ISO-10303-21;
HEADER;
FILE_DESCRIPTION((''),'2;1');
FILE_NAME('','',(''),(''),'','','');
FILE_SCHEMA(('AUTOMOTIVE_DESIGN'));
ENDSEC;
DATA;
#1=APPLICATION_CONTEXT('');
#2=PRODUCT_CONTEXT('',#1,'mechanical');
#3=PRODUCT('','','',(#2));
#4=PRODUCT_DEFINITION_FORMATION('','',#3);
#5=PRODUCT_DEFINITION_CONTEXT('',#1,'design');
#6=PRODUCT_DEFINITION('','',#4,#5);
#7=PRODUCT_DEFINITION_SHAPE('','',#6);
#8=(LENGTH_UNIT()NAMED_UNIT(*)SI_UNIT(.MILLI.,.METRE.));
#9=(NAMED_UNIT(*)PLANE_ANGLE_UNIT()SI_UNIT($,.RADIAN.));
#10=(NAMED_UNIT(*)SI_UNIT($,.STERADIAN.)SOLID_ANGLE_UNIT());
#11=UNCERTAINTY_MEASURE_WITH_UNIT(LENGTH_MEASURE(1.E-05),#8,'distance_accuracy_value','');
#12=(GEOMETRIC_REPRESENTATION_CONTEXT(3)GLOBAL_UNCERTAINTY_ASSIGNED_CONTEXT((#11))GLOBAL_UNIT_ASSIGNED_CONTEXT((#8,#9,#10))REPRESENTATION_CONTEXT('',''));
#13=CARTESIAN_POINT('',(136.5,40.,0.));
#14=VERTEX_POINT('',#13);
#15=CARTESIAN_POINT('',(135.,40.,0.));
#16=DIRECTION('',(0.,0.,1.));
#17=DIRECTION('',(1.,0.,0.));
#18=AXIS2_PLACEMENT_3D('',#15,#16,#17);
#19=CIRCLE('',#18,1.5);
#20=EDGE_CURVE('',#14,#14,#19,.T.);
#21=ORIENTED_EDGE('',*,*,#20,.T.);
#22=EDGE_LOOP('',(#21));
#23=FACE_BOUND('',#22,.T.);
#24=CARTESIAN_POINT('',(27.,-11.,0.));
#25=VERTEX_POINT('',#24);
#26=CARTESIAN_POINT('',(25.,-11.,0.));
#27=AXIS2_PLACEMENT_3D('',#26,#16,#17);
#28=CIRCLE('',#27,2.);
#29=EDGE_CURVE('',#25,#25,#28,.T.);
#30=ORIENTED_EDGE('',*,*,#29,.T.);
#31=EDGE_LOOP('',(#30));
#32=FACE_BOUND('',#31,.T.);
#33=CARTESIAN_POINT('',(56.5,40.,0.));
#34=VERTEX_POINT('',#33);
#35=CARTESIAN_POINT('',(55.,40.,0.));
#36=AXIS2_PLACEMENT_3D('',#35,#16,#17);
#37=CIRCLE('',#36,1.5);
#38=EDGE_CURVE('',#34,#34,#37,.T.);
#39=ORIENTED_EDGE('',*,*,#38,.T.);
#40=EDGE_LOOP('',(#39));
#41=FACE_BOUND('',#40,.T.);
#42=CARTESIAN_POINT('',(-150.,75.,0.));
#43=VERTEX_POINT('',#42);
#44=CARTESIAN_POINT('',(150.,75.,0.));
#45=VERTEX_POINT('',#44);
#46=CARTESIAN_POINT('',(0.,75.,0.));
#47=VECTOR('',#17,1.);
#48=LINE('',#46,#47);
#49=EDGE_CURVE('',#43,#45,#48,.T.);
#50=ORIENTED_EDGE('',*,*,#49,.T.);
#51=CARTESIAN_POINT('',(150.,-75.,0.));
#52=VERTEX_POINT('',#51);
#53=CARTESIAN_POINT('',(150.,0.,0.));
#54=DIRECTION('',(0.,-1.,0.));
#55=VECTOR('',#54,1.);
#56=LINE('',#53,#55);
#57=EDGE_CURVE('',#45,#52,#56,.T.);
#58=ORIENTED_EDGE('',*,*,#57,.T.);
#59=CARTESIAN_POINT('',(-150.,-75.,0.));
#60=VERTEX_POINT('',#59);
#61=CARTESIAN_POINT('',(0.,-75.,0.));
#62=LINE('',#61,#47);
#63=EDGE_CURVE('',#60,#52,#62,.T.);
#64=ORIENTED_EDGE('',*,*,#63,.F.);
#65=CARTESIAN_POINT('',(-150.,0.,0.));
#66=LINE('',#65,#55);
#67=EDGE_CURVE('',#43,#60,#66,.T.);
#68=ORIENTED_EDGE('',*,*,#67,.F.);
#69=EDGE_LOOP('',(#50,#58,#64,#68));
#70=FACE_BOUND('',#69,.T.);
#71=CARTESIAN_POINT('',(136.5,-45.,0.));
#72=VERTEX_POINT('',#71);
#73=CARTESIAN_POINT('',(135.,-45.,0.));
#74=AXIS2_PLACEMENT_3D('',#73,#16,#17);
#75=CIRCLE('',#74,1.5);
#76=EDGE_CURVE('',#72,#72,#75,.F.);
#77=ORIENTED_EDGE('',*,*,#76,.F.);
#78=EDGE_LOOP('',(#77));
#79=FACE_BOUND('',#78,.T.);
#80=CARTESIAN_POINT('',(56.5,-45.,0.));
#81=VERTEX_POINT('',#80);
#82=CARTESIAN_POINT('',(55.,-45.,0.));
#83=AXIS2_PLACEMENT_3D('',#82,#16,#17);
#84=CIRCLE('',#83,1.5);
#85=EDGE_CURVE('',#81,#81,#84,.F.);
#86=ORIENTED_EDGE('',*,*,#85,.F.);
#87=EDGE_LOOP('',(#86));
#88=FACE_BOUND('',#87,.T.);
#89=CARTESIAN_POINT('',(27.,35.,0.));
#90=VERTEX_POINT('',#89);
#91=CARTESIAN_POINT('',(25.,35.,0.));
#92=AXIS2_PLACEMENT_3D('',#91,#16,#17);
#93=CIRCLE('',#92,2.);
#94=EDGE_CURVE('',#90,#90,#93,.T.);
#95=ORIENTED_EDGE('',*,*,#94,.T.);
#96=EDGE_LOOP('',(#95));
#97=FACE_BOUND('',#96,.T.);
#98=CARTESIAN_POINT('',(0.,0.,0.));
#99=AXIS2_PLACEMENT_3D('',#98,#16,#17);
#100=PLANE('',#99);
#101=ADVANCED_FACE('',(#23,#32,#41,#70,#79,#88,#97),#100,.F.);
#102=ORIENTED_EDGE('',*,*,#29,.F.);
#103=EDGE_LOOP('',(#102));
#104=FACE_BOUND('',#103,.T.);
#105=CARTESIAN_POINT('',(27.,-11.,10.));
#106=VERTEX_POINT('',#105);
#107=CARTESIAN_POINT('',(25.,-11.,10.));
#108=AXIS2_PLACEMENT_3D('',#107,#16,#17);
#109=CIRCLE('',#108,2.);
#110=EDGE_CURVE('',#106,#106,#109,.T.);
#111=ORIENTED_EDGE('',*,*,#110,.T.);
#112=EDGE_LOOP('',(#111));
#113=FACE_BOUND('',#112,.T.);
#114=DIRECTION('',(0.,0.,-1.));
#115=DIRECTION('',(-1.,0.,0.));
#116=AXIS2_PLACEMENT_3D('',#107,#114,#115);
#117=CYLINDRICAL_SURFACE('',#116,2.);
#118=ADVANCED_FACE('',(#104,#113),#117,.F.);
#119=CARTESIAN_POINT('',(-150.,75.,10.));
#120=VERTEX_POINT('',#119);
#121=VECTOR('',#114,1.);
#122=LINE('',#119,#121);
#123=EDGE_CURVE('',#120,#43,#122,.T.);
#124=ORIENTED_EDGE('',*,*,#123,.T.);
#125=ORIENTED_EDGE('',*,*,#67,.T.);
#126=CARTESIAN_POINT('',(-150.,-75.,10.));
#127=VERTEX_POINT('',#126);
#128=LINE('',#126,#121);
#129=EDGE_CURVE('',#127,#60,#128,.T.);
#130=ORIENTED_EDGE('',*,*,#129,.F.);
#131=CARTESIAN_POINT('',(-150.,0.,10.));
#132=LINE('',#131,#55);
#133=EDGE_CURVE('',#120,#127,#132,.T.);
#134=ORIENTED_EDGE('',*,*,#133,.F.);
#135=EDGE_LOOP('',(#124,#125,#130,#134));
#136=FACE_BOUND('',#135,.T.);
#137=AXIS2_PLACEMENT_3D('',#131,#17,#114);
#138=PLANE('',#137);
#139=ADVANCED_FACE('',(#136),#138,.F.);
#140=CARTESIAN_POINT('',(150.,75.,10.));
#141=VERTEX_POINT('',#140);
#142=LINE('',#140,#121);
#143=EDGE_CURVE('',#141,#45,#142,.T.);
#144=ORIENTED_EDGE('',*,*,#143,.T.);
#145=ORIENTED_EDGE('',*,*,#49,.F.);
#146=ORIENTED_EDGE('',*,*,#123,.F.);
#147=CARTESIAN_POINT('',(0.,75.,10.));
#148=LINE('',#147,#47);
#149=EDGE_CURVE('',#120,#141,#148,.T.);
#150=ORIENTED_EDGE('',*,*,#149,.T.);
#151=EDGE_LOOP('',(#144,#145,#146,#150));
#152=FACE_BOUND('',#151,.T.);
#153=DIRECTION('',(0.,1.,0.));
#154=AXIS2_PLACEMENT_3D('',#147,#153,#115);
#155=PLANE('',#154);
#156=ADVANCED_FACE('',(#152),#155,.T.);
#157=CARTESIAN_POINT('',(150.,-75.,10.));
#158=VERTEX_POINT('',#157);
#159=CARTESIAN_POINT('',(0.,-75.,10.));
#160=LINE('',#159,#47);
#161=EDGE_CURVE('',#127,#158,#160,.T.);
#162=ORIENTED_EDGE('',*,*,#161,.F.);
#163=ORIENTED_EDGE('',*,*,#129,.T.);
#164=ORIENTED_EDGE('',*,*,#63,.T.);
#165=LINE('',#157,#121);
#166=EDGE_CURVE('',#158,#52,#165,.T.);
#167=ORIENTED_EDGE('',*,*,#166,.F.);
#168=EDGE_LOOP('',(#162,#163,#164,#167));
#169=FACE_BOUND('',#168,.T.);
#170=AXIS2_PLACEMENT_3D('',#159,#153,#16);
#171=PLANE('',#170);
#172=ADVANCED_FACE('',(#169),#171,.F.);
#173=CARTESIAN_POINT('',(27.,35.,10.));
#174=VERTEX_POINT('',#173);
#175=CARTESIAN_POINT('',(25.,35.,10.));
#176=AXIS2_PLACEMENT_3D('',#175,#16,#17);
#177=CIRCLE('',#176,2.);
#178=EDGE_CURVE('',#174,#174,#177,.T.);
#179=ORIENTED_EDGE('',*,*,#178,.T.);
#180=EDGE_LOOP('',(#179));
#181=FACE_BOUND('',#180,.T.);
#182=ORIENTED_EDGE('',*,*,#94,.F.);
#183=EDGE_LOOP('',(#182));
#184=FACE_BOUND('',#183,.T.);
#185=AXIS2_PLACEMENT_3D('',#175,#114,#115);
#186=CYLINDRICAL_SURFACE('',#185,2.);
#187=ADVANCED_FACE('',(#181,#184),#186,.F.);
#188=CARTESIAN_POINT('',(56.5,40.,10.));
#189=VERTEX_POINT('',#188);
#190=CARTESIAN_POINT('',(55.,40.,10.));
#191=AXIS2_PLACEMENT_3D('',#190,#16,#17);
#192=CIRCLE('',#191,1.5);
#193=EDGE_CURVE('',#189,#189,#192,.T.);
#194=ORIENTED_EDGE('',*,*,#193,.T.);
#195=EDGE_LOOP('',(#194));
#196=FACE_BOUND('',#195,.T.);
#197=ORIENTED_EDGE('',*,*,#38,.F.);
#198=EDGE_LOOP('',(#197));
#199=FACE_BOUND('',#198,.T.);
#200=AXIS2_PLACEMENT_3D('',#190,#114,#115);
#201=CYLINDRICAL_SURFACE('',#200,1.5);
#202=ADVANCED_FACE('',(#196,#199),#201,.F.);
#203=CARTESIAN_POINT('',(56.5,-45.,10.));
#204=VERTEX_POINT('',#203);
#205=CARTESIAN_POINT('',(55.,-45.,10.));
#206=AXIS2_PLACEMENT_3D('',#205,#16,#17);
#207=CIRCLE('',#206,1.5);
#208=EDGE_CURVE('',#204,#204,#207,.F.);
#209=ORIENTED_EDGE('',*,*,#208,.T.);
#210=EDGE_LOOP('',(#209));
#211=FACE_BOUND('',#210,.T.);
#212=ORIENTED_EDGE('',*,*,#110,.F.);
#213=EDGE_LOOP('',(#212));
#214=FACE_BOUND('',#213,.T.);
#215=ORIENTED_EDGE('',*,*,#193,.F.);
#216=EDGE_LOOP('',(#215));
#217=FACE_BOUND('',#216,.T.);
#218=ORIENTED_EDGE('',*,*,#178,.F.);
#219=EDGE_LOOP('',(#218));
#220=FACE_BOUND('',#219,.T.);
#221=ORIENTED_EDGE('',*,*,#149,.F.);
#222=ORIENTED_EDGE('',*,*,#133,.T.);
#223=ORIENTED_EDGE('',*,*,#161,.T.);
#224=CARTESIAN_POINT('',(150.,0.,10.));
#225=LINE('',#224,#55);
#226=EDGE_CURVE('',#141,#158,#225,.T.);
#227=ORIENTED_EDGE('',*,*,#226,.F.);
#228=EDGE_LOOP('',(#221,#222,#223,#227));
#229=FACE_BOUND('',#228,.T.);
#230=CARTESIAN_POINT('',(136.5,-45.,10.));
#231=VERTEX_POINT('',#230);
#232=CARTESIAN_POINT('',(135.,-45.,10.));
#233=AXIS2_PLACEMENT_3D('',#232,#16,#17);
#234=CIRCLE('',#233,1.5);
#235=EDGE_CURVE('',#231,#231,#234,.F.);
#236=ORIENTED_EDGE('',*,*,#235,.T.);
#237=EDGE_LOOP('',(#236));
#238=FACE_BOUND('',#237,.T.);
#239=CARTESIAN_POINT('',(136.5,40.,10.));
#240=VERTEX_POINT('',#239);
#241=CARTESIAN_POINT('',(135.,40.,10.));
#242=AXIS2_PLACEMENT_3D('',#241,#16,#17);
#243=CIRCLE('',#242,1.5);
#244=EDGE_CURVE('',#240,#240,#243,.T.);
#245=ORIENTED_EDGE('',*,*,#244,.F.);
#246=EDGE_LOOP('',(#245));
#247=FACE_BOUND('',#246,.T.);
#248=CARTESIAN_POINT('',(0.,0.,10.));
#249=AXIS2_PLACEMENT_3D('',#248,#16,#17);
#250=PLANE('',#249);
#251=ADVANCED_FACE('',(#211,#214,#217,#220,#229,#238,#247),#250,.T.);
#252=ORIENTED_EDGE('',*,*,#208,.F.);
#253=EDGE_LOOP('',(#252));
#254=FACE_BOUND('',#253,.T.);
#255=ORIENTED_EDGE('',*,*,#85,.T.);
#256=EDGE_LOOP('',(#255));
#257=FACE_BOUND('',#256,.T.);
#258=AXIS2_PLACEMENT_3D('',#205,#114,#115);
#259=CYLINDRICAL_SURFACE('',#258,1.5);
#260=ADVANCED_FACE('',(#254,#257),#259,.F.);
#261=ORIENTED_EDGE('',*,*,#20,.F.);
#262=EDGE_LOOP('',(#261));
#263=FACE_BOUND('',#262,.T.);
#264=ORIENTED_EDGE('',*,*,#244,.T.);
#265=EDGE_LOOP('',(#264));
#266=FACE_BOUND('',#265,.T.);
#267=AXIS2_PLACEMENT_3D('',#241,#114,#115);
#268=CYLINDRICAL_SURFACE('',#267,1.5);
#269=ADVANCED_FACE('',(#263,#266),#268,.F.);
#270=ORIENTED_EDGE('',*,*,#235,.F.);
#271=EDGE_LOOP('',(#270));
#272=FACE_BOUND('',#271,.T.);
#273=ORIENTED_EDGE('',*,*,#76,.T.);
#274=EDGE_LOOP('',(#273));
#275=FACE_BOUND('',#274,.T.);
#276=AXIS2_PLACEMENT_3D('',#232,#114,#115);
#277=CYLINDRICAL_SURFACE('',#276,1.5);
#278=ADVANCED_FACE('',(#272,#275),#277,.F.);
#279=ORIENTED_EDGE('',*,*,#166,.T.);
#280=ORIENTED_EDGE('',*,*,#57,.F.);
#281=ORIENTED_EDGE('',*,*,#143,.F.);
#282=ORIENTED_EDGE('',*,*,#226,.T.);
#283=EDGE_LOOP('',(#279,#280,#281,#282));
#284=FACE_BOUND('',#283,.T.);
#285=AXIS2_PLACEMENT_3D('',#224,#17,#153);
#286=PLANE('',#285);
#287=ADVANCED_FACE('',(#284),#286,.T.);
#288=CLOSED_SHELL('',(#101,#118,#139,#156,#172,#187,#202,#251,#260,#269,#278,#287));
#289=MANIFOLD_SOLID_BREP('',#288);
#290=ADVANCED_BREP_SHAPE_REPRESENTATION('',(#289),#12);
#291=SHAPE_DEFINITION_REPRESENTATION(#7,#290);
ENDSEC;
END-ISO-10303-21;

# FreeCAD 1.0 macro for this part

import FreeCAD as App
import Part
import Sketcher

V = App.Vector
Q = App.Units.Quantity

doc = App.newDocument("Part")
body = doc.addObject("PartDesign::Body", "Body")

# Sketch on XY plane
sketch1 = doc.addObject("Sketcher::SketchObject", "Sketch")
body.addObject(sketch1)
sketch1.AttachmentSupport = (doc.XY_Plane, [""])
sketch1.MapMode = "FlatFace"
sketch1.addGeometry(Part.LineSegment(V(-150, 75, 0), V(-150, -75, 0)), False)
sketch1.addGeometry(Part.LineSegment(V(-150, -75, 0), V(150, -75, 0)), False)
sketch1.addGeometry(Part.LineSegment(V(150, -75, 0), V(150, 75, 0)), False)
sketch1.addGeometry(Part.LineSegment(V(150, 75, 0), V(-150, 75, 0)), False)
sketch1.addGeometry(Part.Circle(V(55, -45, 0), V(0, 0, 1), 1.5), False)
sketch1.addGeometry(Part.Circle(V(25, -11, 0), V(0, 0, 1), 2), False)
sketch1.addGeometry(Part.Circle(V(135, -45, 0), V(0, 0, 1), 1.5), False)
sketch1.addGeometry(Part.Circle(V(25, 35, 0), V(0, 0, 1), 2), False)
sketch1.addGeometry(Part.Circle(V(55, 40, 0), V(0, 0, 1), 1.5), False)
sketch1.addGeometry(Part.Circle(V(135, 40, 0), V(0, 0, 1), 1.5), False)
sketch1.addConstraint(Sketcher.Constraint("Coincident", 0, 2, 1, 1))
sketch1.addConstraint(Sketcher.Constraint("Coincident", 1, 2, 2, 1))
sketch1.addConstraint(Sketcher.Constraint("Coincident", 2, 2, 3, 1))
sketch1.addConstraint(Sketcher.Constraint("Coincident", 3, 2, 0, 1))
sketch1.addConstraint(Sketcher.Constraint("Vertical", 0))
sketch1.addConstraint(Sketcher.Constraint("Horizontal", 1))
sketch1.addConstraint(Sketcher.Constraint("Vertical", 2))
sketch1.addConstraint(Sketcher.Constraint("Horizontal", 3))
sketch1.addConstraint(Sketcher.Constraint("Equal", 4, 6))
sketch1.addConstraint(Sketcher.Constraint("Equal", 5, 7))
sketch1.addConstraint(Sketcher.Constraint("Equal", 6, 8))
sketch1.addConstraint(Sketcher.Constraint("Equal", 8, 9))
sketch1.addConstraint(Sketcher.Constraint("Symmetric", 0, 2, 2, 2, -1, 1))
sketch1.addConstraint(Sketcher.Constraint("Horizontal", 4, 3, 6, 3))
sketch1.addConstraint(Sketcher.Constraint("Horizontal", 8, 3, 9, 3))
sketch1.addConstraint(Sketcher.Constraint("Vertical", 5, 3, 7, 3))
sketch1.addConstraint(Sketcher.Constraint("Vertical", 4, 3, 8, 3))
sketch1.addConstraint(Sketcher.Constraint("Vertical", 6, 3, 9, 3))
sketch1.addConstraint(Sketcher.Constraint("Diameter", 4, Q("3 mm")))
sketch1.addConstraint(Sketcher.Constraint("Diameter", 5, Q("4 mm")))
sketch1.addConstraint(Sketcher.Constraint("DistanceX", 1, 1, 1, 2, Q("300 mm")))
sketch1.addConstraint(Sketcher.Constraint("DistanceY", 0, 2, 0, 1, Q("150 mm")))
sketch1.addConstraint(Sketcher.Constraint("DistanceX", -1, 1, 4, 3, Q("55 mm")))
sketch1.addConstraint(Sketcher.Constraint("DistanceY", 4, 3, -1, 1, Q("45 mm")))
sketch1.addConstraint(Sketcher.Constraint("DistanceX", -1, 1, 5, 3, Q("25 mm")))
sketch1.addConstraint(Sketcher.Constraint("DistanceY", 5, 3, -1, 1, Q("11 mm")))
sketch1.addConstraint(Sketcher.Constraint("DistanceX", -1, 1, 6, 3, Q("135 mm")))
sketch1.addConstraint(Sketcher.Constraint("DistanceY", -1, 1, 7, 3, Q("35 mm")))
sketch1.addConstraint(Sketcher.Constraint("DistanceY", -1, 1, 8, 3, Q("40 mm")))
pad1 = doc.addObject("PartDesign::Pad", "Pad")
body.addObject(pad1)
pad1.Profile = sketch1
pad1.Length = 10

doc.recompute()
